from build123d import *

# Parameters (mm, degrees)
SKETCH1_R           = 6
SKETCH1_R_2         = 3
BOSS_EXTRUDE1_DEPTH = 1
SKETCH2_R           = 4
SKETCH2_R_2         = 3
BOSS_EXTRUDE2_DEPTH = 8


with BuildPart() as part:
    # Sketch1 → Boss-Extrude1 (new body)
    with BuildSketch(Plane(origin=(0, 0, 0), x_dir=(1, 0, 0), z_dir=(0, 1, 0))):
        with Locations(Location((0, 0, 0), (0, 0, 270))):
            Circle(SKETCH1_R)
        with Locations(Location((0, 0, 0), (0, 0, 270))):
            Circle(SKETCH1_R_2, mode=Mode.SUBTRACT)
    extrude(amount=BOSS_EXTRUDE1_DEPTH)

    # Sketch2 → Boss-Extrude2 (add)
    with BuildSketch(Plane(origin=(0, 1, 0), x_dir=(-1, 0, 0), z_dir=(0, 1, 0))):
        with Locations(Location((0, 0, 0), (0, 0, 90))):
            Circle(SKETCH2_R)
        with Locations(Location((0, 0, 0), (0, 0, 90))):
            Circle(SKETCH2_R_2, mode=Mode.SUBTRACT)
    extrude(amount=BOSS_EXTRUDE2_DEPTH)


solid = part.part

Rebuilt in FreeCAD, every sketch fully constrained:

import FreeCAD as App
import Part
import Sketcher
from FreeCAD import Vector
Q = App.Units.Quantity

doc = App.newDocument("Part")
body = doc.addObject("PartDesign::Body", "Body")

# Sketch on XZ plane
sketch1 = body.newObject("Sketcher::SketchObject", "Sketch")
sketch1.AttachmentSupport = (doc.getObject("XZ_Plane"), [""])
sketch1.MapMode = "FlatFace"
sketch1.addGeometry(Part.Circle(Vector(0, 0, 0), Vector(0, 0, 1), 6), False)
sketch1.addGeometry(Part.Circle(Vector(0, 0, 0), Vector(0, 0, 1), 3), False)
sketch1.addConstraint(Sketcher.Constraint("Coincident", 0, 3, -1, 1))
sketch1.addConstraint(Sketcher.Constraint("Coincident", 1, 3, -1, 1))
sketch1.addConstraint(Sketcher.Constraint("Diameter", 0, Q("12 mm")))
sketch1.addConstraint(Sketcher.Constraint("Diameter", 1, Q("6 mm")))
pad1 = body.newObject("PartDesign::Pad", "Pad")
pad1.Profile = sketch1
pad1.Length = 1
pad1.Reversed = True

# Sketch on XZ plane
sketch2 = body.newObject("Sketcher::SketchObject", "Sketch001")
sketch2.AttachmentSupport = (doc.getObject("XZ_Plane"), [""])
sketch2.MapMode = "FlatFace"
sketch2.AttachmentOffset = App.Placement(Vector(0, 0, -1), App.Rotation())
sketch2.addGeometry(Part.Circle(Vector(0, 0, 0), Vector(0, 0, 1), 4), False)
sketch2.addGeometry(Part.Circle(Vector(0, 0, 0), Vector(0, 0, 1), 3), False)
sketch2.addConstraint(Sketcher.Constraint("Coincident", 0, 3, -1, 1))
sketch2.addConstraint(Sketcher.Constraint("Coincident", 1, 3, -1, 1))
sketch2.addConstraint(Sketcher.Constraint("Diameter", 0, Q("8 mm")))
sketch2.addConstraint(Sketcher.Constraint("Diameter", 1, Q("6 mm")))
pad2 = body.newObject("PartDesign::Pad", "Pad001")
pad2.Profile = sketch2
pad2.Length = 8
pad2.Reversed = True

doc.recompute()
